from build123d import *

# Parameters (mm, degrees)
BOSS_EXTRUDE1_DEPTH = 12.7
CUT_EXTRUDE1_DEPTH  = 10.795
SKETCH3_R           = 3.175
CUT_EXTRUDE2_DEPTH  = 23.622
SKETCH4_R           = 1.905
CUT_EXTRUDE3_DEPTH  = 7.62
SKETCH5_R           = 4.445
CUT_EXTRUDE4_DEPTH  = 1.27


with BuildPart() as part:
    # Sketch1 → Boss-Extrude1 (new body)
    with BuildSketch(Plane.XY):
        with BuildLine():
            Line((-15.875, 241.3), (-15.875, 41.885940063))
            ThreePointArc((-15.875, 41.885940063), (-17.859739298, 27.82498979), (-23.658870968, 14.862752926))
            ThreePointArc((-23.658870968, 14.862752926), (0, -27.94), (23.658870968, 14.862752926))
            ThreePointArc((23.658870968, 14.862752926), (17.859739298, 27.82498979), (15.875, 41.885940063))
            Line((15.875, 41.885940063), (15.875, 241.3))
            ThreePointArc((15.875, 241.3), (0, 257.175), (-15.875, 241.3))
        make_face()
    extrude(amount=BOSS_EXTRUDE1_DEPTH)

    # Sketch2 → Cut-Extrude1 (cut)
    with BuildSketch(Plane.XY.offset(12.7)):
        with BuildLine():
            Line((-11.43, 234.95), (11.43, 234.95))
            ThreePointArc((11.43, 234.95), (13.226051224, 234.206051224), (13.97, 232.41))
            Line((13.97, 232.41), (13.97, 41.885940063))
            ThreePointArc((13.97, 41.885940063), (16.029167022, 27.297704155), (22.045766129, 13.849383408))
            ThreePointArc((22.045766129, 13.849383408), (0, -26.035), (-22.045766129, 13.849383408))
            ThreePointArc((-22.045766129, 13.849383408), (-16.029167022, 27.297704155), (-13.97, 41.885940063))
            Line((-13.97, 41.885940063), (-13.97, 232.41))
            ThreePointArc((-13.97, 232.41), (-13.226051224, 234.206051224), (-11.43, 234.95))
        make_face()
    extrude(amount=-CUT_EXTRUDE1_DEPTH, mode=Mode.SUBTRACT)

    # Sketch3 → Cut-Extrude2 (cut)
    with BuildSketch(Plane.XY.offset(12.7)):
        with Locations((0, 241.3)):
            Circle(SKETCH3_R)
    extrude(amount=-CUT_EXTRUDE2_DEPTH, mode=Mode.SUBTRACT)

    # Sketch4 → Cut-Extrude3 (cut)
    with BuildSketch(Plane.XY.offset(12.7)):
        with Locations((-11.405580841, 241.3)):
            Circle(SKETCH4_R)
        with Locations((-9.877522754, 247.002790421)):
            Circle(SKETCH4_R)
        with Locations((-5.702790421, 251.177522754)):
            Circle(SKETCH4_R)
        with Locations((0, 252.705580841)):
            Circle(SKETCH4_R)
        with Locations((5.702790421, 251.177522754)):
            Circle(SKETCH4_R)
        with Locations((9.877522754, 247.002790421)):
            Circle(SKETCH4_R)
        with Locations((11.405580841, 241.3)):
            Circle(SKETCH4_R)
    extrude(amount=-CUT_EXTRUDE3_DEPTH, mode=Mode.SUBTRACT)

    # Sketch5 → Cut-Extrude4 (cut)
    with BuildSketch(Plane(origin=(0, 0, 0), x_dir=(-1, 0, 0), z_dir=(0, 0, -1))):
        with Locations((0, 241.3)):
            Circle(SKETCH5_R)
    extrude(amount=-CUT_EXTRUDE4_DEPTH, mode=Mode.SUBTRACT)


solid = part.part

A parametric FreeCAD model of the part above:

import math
import FreeCAD as App
import Part
import Sketcher
Q = App.Units.Quantity

doc = App.newDocument("Part")
body = doc.addObject("PartDesign::Body", "Body")

# Sketch on XY plane
sketch1 = body.newObject("Sketcher::SketchObject", "Sketch")
sketch1.AttachmentSupport = (doc.getObject("XY_Plane"), [""])
sketch1.MapMode = "FlatFace"
sketch1.addGeometry(Part.LineSegment(App.Vector(-16, 241, 0), App.Vector(-16, 42, 0)), False)
sketch1.addGeometry(Part.ArcOfCircle(Part.Circle(App.Vector(-67, 42, 0), App.Vector(0, 0, 1), 51), math.radians(-32), math.radians(0)), False)
sketch1.addGeometry(Part.ArcOfCircle(Part.Circle(App.Vector(0, 0, 0), App.Vector(0, 0, 1), 28), math.radians(148), math.radians(392)), False)
sketch1.addGeometry(Part.ArcOfCircle(Part.Circle(App.Vector(67, 42, 0), App.Vector(0, 0, 1), 51), math.radians(180), math.radians(212)), False)
sketch1.addGeometry(Part.LineSegment(App.Vector(16, 42, 0), App.Vector(16, 241, 0)), False)
sketch1.addGeometry(Part.ArcOfCircle(Part.Circle(App.Vector(0, 241, 0), App.Vector(0, 0, 1), 16), math.radians(0), math.radians(180)), False)
sketch1.addConstraint(Sketcher.Constraint("Tangent", 0, 2, 1, 2))
sketch1.addConstraint(Sketcher.Constraint("Tangent", 1, 1, 2, 1))
sketch1.addConstraint(Sketcher.Constraint("Tangent", 2, 2, 3, 2))
sketch1.addConstraint(Sketcher.Constraint("Tangent", 3, 1, 4, 1))
sketch1.addConstraint(Sketcher.Constraint("Tangent", 4, 2, 5, 1))
sketch1.addConstraint(Sketcher.Constraint("Tangent", 5, 2, 0, 1))
sketch1.addConstraint(Sketcher.Constraint("Vertical", 0))
sketch1.addConstraint(Sketcher.Constraint("Vertical", 4))
sketch1.addConstraint(Sketcher.Constraint("Coincident", 2, 3, -1, 1))
sketch1.addConstraint(Sketcher.Constraint("Equal", 1, 3))
sketch1.addConstraint(Sketcher.Constraint("PointOnObject", 5, 3, -2))
sketch1.addConstraint(Sketcher.Constraint("Radius", 1, Q("2 in")))
sketch1.addConstraint(Sketcher.Constraint("Radius", 2, Q("1.1 in")))
sketch1.addConstraint(Sketcher.Constraint("Radius", 5, Q("0.625 in")))
sketch1.addConstraint(Sketcher.Constraint("DistanceY", -1, 1, 5, 3, Q("9.5 in")))
pad1 = body.newObject("PartDesign::Pad", "Pad")
pad1.Profile = sketch1
pad1.Length = Q("0.5 in")

# Sketch on XY plane
sketch2 = body.newObject("Sketcher::SketchObject", "Sketch001")
sketch2.AttachmentSupport = (doc.getObject("XY_Plane"), [""])
sketch2.MapMode = "FlatFace"
sketch2.AttachmentOffset = App.Placement(App.Vector(0, 0, 0.5 * 25.4), App.Rotation())
sketch2.addGeometry(Part.LineSegment(App.Vector(11.4, 234.9, 0), App.Vector(-11.4, 234.9, 0)), False)
sketch2.addGeometry(Part.ArcOfCircle(Part.Circle(App.Vector(-11.4, 232.4, 0), App.Vector(0, 0, 1), 2.5), math.radians(90), math.radians(180)), False)
sketch2.addGeometry(Part.LineSegment(App.Vector(-14, 232.4, 0), App.Vector(-14, 41.9, 0)), False)
sketch2.addGeometry(Part.ArcOfCircle(Part.Circle(App.Vector(-66.7, 41.9, 0), App.Vector(0, 0, 1), 52.7), math.radians(-32), math.radians(0)), False)
sketch2.addGeometry(Part.ArcOfCircle(Part.Circle(App.Vector(0, 0, 0), App.Vector(0, 0, 1), 26), math.radians(148), math.radians(392)), False)
sketch2.addGeometry(Part.ArcOfCircle(Part.Circle(App.Vector(66.7, 41.9, 0), App.Vector(0, 0, 1), 52.7), math.radians(-180), math.radians(-148)), False)
sketch2.addGeometry(Part.LineSegment(App.Vector(14, 41.9, 0), App.Vector(14, 232.4, 0)), False)
sketch2.addGeometry(Part.ArcOfCircle(Part.Circle(App.Vector(11.4, 232.4, 0), App.Vector(0, 0, 1), 2.5), math.radians(0), math.radians(90)), False)
sketch2.addConstraint(Sketcher.Constraint("Tangent", 0, 2, 1, 1))
sketch2.addConstraint(Sketcher.Constraint("Tangent", 1, 2, 2, 1))
sketch2.addConstraint(Sketcher.Constraint("Tangent", 2, 2, 3, 2))
sketch2.addConstraint(Sketcher.Constraint("Tangent", 3, 1, 4, 1))
sketch2.addConstraint(Sketcher.Constraint("Tangent", 4, 2, 5, 2))
sketch2.addConstraint(Sketcher.Constraint("Tangent", 5, 1, 6, 1))
sketch2.addConstraint(Sketcher.Constraint("Tangent", 6, 2, 7, 1))
sketch2.addConstraint(Sketcher.Constraint("Tangent", 7, 2, 0, 1))
sketch2.addConstraint(Sketcher.Constraint("Horizontal", 0))
sketch2.addConstraint(Sketcher.Constraint("Vertical", 2))
sketch2.addConstraint(Sketcher.Constraint("Vertical", 6))
sketch2.addConstraint(Sketcher.Constraint("Coincident", 4, 3, -1, 1))
sketch2.addConstraint(Sketcher.Constraint("Equal", 3, 5))
sketch2.addConstraint(Sketcher.Constraint("Equal", 1, 7))
sketch2.addConstraint(Sketcher.Constraint("Horizontal", 3, 3, 5, 3))
sketch2.addConstraint(Sketcher.Constraint("Radius", 1, Q("0.1 in")))
sketch2.addConstraint(Sketcher.Constraint("DistanceX", 0, 2, 0, 1, Q("0.9 in")))
sketch2.addConstraint(Sketcher.Constraint("Radius", 3, Q("2.075 in")))
sketch2.addConstraint(Sketcher.Constraint("Radius", 4, Q("1.025 in")))
sketch2.addConstraint(Sketcher.Constraint("DistanceY", -1, 1, 1, 3, Q("9.15 in")))
pocket1 = body.newObject("PartDesign::Pocket", "Pocket")
pocket1.Profile = sketch2
pocket1.Length = Q("0.425 in")

# Sketch on XY plane
sketch3 = body.newObject("Sketcher::SketchObject", "Sketch002")
sketch3.AttachmentSupport = (doc.getObject("XY_Plane"), [""])
sketch3.MapMode = "FlatFace"
sketch3.AttachmentOffset = App.Placement(App.Vector(0, 0, 0.5 * 25.4), App.Rotation())
sketch3.addGeometry(Part.Circle(App.Vector(0, 241.3, 0), App.Vector(0, 0, 1), 3.2), False)
sketch3.addConstraint(Sketcher.Constraint("PointOnObject", 0, 3, -2))
sketch3.addConstraint(Sketcher.Constraint("Diameter", 0, Q("0.25 in")))
sketch3.addConstraint(Sketcher.Constraint("DistanceY", -1, 1, 0, 3, Q("9.5 in")))
pocket2 = body.newObject("PartDesign::Pocket", "Pocket001")
pocket2.Profile = sketch3
pocket2.Length = Q("0.93 in")

# Sketch on XY plane
sketch4 = body.newObject("Sketcher::SketchObject", "Sketch003")
sketch4.AttachmentSupport = (doc.getObject("XY_Plane"), [""])
sketch4.MapMode = "FlatFace"
sketch4.AttachmentOffset = App.Placement(App.Vector(0, 0, 0.5 * 25.4), App.Rotation())
sketch4.addGeometry(Part.Circle(App.Vector(-11.4, 241.3, 0), App.Vector(0, 0, 1), 1.9), False)
sketch4.addGeometry(Part.Circle(App.Vector(-9.9, 247, 0), App.Vector(0, 0, 1), 1.9), False)
sketch4.addGeometry(Part.Circle(App.Vector(-5.7, 251.2, 0), App.Vector(0, 0, 1), 1.9), False)
sketch4.addGeometry(Part.Circle(App.Vector(0, 252.7, 0), App.Vector(0, 0, 1), 1.9), False)
sketch4.addGeometry(Part.Circle(App.Vector(5.7, 251.2, 0), App.Vector(0, 0, 1), 1.9), False)
sketch4.addGeometry(Part.Circle(App.Vector(9.9, 247, 0), App.Vector(0, 0, 1), 1.9), False)
sketch4.addGeometry(Part.Circle(App.Vector(11.4, 241.3, 0), App.Vector(0, 0, 1), 1.9), False)
sketch4.addConstraint(Sketcher.Constraint("Equal", 0, 1))
sketch4.addConstraint(Sketcher.Constraint("Equal", 1, 2))
sketch4.addConstraint(Sketcher.Constraint("Equal", 2, 3))
sketch4.addConstraint(Sketcher.Constraint("Equal", 3, 4))
sketch4.addConstraint(Sketcher.Constraint("Equal", 4, 5))
sketch4.addConstraint(Sketcher.Constraint("Equal", 5, 6))
sketch4.addConstraint(Sketcher.Constraint("Symmetric", 2, 3, 4, 3, -2))
sketch4.addConstraint(Sketcher.Constraint("Symmetric", 1, 3, 5, 3, -2))
sketch4.addConstraint(Sketcher.Constraint("Symmetric", 0, 3, 6, 3, -2))
sketch4.addConstraint(Sketcher.Constraint("PointOnObject", 3, 3, -2))
sketch4.addConstraint(Sketcher.Constraint("Diameter", 0, Q("0.15 in")))
sketch4.addConstraint(Sketcher.Constraint("DistanceY", -1, 1, 0, 3, Q("9.5 in")))
sketch4.addConstraint(Sketcher.Constraint("DistanceX", 0, 3, -1, 1, 11.405581))
sketch4.addConstraint(Sketcher.Constraint("DistanceY", -1, 1, 1, 3, 247.00279))
sketch4.addConstraint(Sketcher.Constraint("DistanceX", 2, 3, -1, 1, 5.70279))
sketch4.addConstraint(Sketcher.Constraint("DistanceY", -1, 1, 3, 3, 252.705581))
sketch4.addConstraint(Sketcher.Constraint("DistanceX", 0, 3, 1, 3, 1.528058))
sketch4.addConstraint(Sketcher.Constraint("DistanceY", 2, 3, 3, 3, 1.528058))
pocket3 = body.newObject("PartDesign::Pocket", "Pocket002")
pocket3.Profile = sketch4
pocket3.Length = Q("0.3 in")

# Sketch on XY plane
sketch5 = body.newObject("Sketcher::SketchObject", "Sketch004")
sketch5.AttachmentSupport = (doc.getObject("XY_Plane"), [""])
sketch5.MapMode = "FlatFace"
sketch5.addGeometry(Part.Circle(App.Vector(0, 241.3, 0), App.Vector(0, 0, 1), 4.4), False)
sketch5.addConstraint(Sketcher.Constraint("PointOnObject", 0, 3, -2))
sketch5.addConstraint(Sketcher.Constraint("Diameter", 0, Q("0.35 in")))
sketch5.addConstraint(Sketcher.Constraint("DistanceY", -1, 1, 0, 3, Q("9.5 in")))
pocket4 = body.newObject("PartDesign::Pocket", "Pocket003")
pocket4.Profile = sketch5
pocket4.Length = Q("0.05 in")
pocket4.Reversed = True

doc.recompute()
